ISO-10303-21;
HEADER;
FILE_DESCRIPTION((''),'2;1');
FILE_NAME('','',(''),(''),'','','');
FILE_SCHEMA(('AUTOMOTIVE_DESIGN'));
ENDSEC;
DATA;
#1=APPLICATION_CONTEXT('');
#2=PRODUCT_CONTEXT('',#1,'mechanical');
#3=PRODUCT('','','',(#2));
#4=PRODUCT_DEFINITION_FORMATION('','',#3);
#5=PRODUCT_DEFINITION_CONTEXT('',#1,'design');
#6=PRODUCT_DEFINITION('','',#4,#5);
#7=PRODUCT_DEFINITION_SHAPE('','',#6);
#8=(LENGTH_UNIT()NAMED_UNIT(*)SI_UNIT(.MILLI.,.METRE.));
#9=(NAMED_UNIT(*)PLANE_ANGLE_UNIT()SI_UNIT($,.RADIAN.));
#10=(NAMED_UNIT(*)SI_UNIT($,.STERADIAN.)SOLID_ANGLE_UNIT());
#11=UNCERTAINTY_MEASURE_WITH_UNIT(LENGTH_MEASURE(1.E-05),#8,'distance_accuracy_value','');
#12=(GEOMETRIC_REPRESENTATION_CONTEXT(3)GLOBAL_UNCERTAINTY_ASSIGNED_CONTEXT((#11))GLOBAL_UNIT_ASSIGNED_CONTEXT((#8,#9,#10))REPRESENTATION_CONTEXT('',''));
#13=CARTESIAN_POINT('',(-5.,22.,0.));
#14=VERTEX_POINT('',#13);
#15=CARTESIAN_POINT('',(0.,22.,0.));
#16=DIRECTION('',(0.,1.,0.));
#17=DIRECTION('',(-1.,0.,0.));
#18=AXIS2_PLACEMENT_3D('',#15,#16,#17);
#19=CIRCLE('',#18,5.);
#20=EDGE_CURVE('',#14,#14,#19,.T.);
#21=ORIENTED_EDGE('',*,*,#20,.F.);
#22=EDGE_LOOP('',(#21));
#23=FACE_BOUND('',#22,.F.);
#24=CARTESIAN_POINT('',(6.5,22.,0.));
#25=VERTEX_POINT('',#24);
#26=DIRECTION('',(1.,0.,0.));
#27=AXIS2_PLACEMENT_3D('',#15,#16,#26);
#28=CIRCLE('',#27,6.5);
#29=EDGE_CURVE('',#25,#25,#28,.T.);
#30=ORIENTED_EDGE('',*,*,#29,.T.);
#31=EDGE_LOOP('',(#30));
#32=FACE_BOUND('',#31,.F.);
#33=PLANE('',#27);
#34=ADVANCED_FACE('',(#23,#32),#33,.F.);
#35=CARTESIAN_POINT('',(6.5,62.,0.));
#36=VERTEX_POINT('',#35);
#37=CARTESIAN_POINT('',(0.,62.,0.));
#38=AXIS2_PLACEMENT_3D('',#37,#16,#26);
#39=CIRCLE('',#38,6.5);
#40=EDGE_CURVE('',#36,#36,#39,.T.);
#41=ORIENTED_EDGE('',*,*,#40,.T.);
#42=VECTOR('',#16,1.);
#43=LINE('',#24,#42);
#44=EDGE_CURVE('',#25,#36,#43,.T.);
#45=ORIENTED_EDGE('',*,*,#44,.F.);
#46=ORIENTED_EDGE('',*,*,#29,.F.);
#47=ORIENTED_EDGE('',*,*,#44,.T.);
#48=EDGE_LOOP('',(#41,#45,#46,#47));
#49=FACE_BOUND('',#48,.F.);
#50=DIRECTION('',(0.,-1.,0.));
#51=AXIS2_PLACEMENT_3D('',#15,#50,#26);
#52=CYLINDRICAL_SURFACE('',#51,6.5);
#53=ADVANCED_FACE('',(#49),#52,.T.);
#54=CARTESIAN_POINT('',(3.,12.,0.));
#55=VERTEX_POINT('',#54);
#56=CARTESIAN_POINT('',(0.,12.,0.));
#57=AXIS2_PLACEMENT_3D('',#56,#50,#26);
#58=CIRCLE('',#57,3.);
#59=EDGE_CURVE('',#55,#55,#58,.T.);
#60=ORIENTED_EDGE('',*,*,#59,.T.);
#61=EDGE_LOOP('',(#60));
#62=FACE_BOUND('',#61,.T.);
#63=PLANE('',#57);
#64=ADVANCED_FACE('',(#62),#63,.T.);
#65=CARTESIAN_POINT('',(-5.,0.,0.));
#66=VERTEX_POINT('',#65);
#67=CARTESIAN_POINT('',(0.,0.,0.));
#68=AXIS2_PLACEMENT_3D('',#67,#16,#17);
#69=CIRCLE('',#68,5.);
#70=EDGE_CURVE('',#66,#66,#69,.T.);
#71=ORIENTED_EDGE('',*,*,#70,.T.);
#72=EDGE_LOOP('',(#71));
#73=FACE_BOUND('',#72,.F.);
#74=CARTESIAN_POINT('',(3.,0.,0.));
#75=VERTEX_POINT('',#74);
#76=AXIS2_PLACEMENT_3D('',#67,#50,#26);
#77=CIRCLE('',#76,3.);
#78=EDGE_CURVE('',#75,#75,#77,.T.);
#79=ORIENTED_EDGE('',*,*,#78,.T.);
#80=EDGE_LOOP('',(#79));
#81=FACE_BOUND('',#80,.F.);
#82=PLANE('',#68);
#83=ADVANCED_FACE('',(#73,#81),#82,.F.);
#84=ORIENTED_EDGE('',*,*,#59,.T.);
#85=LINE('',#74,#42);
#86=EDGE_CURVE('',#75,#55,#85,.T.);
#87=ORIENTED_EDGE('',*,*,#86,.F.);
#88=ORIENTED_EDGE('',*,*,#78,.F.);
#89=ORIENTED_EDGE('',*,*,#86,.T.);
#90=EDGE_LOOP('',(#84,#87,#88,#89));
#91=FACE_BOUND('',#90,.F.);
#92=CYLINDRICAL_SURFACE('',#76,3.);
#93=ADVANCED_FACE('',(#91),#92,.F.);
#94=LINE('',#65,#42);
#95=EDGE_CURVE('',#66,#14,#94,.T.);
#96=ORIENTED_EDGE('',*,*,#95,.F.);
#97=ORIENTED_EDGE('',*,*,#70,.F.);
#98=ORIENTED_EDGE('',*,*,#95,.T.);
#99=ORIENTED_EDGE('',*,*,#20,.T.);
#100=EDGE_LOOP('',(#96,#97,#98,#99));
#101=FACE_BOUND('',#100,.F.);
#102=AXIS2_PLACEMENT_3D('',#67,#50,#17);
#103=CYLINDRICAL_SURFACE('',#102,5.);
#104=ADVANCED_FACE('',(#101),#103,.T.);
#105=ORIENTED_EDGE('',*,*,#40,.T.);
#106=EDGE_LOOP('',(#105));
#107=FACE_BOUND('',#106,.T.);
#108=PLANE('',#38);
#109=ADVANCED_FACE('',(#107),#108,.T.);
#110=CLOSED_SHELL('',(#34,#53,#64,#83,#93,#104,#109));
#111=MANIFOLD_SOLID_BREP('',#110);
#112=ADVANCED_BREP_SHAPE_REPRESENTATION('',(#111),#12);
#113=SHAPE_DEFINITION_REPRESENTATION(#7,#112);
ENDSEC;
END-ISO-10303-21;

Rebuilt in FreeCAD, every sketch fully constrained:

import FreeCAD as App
import Part
import Sketcher
from FreeCAD import Vector

doc = App.newDocument("Part")
params = doc.addObject("Spreadsheet::Sheet", "Params")
for row, (alias, value) in enumerate([
    ("sketch1_diameter", "10 mm"),
    ("pad1_length", "22 mm"),
    ("sketch2_diameter", "13 mm"),
    ("pad2_length", "40 mm"),
    ("sketch3_diameter", "6 mm"),
    ("pocket1_length", "12 mm"),
], start=1):
    params.set(f"A{row}", alias)
    params.set(f"B{row}", "=" + value)
    params.setAlias(f"B{row}", alias)

body = doc.addObject("PartDesign::Body", "Body")

# Sketch on XZ plane
sketch1 = body.newObject("Sketcher::SketchObject", "Sketch")
sketch1.AttachmentSupport = (doc.getObject("XZ_Plane"), [""])
sketch1.MapMode = "FlatFace"
sketch1.addGeometry(Part.Circle(Vector(0, 0, 0), Vector(0, 0, 1), 5), False)
sketch1.addConstraint(Sketcher.Constraint("Coincident", 0, 3, -1, 1))
sketch1.addConstraint(Sketcher.Constraint("Diameter", 0, 10.0))
sketch1.setExpression("Constraints[1]", "Params.sketch1_diameter")
pad1 = body.newObject("PartDesign::Pad", "Pad")
pad1.Profile = sketch1
pad1.setExpression("Length", "Params.pad1_length")
pad1.Reversed = True

# Sketch on XZ plane
sketch2 = body.newObject("Sketcher::SketchObject", "Sketch001")
sketch2.AttachmentSupport = (doc.getObject("XZ_Plane"), [""])
sketch2.MapMode = "FlatFace"
sketch2.AttachmentOffset = App.Placement(Vector(0, 0, -22), App.Rotation())
sketch2.addGeometry(Part.Circle(Vector(0, 0, 0), Vector(0, 0, 1), 6), False)
sketch2.addConstraint(Sketcher.Constraint("Coincident", 0, 3, -1, 1))
sketch2.addConstraint(Sketcher.Constraint("Diameter", 0, 13.0))
sketch2.setExpression("Constraints[1]", "Params.sketch2_diameter")
pad2 = body.newObject("PartDesign::Pad", "Pad001")
pad2.Profile = sketch2
pad2.setExpression("Length", "Params.pad2_length")
pad2.Reversed = True

# Sketch on XZ plane
sketch3 = body.newObject("Sketcher::SketchObject", "Sketch002")
sketch3.AttachmentSupport = (doc.getObject("XZ_Plane"), [""])
sketch3.MapMode = "FlatFace"
sketch3.addGeometry(Part.Circle(Vector(0, 0, 0), Vector(0, 0, 1), 3), False)
sketch3.addConstraint(Sketcher.Constraint("Coincident", 0, 3, -1, 1))
sketch3.addConstraint(Sketcher.Constraint("Diameter", 0, 6.0))
sketch3.setExpression("Constraints[1]", "Params.sketch3_diameter")
pocket1 = body.newObject("PartDesign::Pocket", "Pocket")
pocket1.Profile = sketch3
pocket1.setExpression("Length", "Params.pocket1_length")

doc.recompute()
